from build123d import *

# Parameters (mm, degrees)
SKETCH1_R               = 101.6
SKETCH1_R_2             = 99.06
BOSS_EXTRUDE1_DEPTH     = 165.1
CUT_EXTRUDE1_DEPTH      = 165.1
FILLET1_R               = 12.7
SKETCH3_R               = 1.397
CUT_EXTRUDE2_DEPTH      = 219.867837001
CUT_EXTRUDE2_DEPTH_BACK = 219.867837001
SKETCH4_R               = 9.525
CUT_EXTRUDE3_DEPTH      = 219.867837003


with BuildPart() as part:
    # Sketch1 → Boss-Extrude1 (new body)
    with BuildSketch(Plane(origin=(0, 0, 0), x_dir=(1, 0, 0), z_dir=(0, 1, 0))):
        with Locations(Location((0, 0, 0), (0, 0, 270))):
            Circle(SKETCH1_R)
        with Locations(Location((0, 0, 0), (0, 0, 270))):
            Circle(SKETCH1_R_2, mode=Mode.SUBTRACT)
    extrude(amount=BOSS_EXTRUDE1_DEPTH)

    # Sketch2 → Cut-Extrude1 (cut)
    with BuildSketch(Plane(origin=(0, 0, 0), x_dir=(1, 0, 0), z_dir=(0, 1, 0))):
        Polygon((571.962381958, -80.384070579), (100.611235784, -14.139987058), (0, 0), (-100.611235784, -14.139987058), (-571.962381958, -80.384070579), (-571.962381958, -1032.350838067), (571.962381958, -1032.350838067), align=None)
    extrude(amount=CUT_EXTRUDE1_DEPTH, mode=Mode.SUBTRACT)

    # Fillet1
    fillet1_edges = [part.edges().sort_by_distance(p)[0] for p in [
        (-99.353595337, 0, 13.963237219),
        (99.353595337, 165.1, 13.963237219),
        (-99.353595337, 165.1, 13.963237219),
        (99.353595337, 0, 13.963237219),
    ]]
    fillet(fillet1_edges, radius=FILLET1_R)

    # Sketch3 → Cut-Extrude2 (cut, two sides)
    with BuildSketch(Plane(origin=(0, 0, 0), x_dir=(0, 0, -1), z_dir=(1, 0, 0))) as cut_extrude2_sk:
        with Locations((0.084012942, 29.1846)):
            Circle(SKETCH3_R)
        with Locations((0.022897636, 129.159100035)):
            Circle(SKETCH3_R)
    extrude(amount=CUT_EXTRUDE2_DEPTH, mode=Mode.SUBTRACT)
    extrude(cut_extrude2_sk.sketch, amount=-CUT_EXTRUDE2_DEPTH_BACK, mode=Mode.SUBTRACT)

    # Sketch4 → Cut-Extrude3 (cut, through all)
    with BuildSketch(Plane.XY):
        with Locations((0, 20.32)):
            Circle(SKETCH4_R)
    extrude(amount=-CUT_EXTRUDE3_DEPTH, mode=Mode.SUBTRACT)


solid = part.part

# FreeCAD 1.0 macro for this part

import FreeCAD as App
import Part
import Sketcher
Q = App.Units.Quantity


def edges_at(feature, points):
    """Names of the edges that pass closest to the given points."""
    edges = feature.Shape.Edges
    near = lambda p: min(range(len(edges)), key=lambda i: edges[i].distToShape(Part.Vertex(*p))[0])
    return sorted({f"Edge{near(p) + 1}" for p in points})

doc = App.newDocument("Part")
params = doc.addObject("Spreadsheet::Sheet", "Params")
for row, (alias, value) in enumerate([
    ("sketch1_diameter", "8 in"),
    ("sketch1_diameter2", "7.8 in"),
    ("pad1_length", "6.5 in"),
    ("sketch2_length", "4 in"),
    ("pocket1_length", "6.5 in"),
    ("fillet_radius", "0.5 in"),
    ("sketch3_diameter", "0.11 in"),
    ("sketch4_diameter", "0.75 in"),
], start=1):
    params.set(f"A{row}", alias)
    params.set(f"B{row}", "=" + value)
    params.setAlias(f"B{row}", alias)

body = doc.addObject("PartDesign::Body", "Body")

# Sketch on XZ plane
sketch1 = body.newObject("Sketcher::SketchObject", "Sketch")
sketch1.AttachmentSupport = (doc.getObject("XZ_Plane"), [""])
sketch1.MapMode = "FlatFace"
sketch1.addGeometry(Part.Circle(App.Vector(0, 0, 0), App.Vector(0, 0, 1), 102), False)
sketch1.addGeometry(Part.Circle(App.Vector(0, 0, 0), App.Vector(0, 0, 1), 99), False)
sketch1.addConstraint(Sketcher.Constraint("Coincident", 0, 3, -1, 1))
sketch1.addConstraint(Sketcher.Constraint("Coincident", 1, 3, -1, 1))
sketch1.addConstraint(Sketcher.Constraint("Diameter", 0, Q("8 in")))
sketch1.addConstraint(Sketcher.Constraint("Diameter", 1, Q("7.8 in")))
sketch1.setExpression("Constraints[2]", "Params.sketch1_diameter")
sketch1.setExpression("Constraints[3]", "Params.sketch1_diameter2")
pad1 = body.newObject("PartDesign::Pad", "Pad")
pad1.Profile = sketch1
pad1.setExpression("Length", "Params.pad1_length")
pad1.Reversed = True

# Sketch on XZ plane
sketch2 = body.newObject("Sketcher::SketchObject", "Sketch001")
sketch2.AttachmentSupport = (doc.getObject("XZ_Plane"), [""])
sketch2.MapMode = "FlatFace"
sketch2.addGeometry(Part.LineSegment(App.Vector(572, 80, 0), App.Vector(101, 14, 0)), False)
sketch2.addGeometry(Part.LineSegment(App.Vector(101, 14, 0), App.Vector(0, 0, 0)), False)
sketch2.addGeometry(Part.LineSegment(App.Vector(0, 0, 0), App.Vector(-101, 14, 0)), False)
sketch2.addGeometry(Part.LineSegment(App.Vector(-101, 14, 0), App.Vector(-572, 80, 0)), False)
sketch2.addGeometry(Part.LineSegment(App.Vector(-572, 80, 0), App.Vector(-572, 1032, 0)), False)
sketch2.addGeometry(Part.LineSegment(App.Vector(-572, 1032, 0), App.Vector(572, 1032, 0)), False)
sketch2.addGeometry(Part.LineSegment(App.Vector(572, 1032, 0), App.Vector(572, 80, 0)), False)
sketch2.addConstraint(Sketcher.Constraint("Coincident", 0, 2, 1, 1))
sketch2.addConstraint(Sketcher.Constraint("Coincident", 1, 2, 2, 1))
sketch2.addConstraint(Sketcher.Constraint("Coincident", 2, 2, 3, 1))
sketch2.addConstraint(Sketcher.Constraint("Coincident", 3, 2, 4, 1))
sketch2.addConstraint(Sketcher.Constraint("Coincident", 4, 2, 5, 1))
sketch2.addConstraint(Sketcher.Constraint("Coincident", 5, 2, 6, 1))
sketch2.addConstraint(Sketcher.Constraint("Coincident", 6, 2, 0, 1))
sketch2.addConstraint(Sketcher.Constraint("Vertical", 4))
sketch2.addConstraint(Sketcher.Constraint("Horizontal", 5))
sketch2.addConstraint(Sketcher.Constraint("Vertical", 6))
sketch2.addConstraint(Sketcher.Constraint("Coincident", 1, 2, -1, 1))
sketch2.addConstraint(Sketcher.Constraint("Symmetric", 0, 2, 2, 2, -2))
sketch2.addConstraint(Sketcher.Constraint("Symmetric", 3, 2, 6, 2, -2))
sketch2.addConstraint(Sketcher.Constraint("Parallel", 0, 1))
sketch2.addConstraint(Sketcher.Constraint("Distance", 1, Q("4 in")))
sketch2.addConstraint(Sketcher.Constraint("Angle", 0, Q("-172 deg")))
sketch2.addConstraint(Sketcher.Constraint("DistanceX", 5, 1, 5, 2, Q("1143.924764 mm")))
sketch2.addConstraint(Sketcher.Constraint("DistanceY", 4, 1, 4, 2, Q("951.966767 mm")))
sketch2.setExpression("Constraints[14]", "Params.sketch2_length")
pocket1 = body.newObject("PartDesign::Pocket", "Pocket")
pocket1.Profile = sketch2
pocket1.setExpression("Length", "Params.pocket1_length")
doc.recompute()

fillet = body.newObject("PartDesign::Fillet", "Fillet")
fillet.Base = (pocket1, edges_at(pocket1, [
    (-99.354, 0, 13.963),
    (99.354, 165.1, 13.963),
    (-99.354, 165.1, 13.963),
    (99.354, 0, 13.963),
]))
fillet.setExpression("Radius", "Params.fillet_radius")

# Sketch on YZ plane
sketch3 = body.newObject("Sketcher::SketchObject", "Sketch002")
sketch3.AttachmentSupport = (doc.getObject("YZ_Plane"), [""])
sketch3.MapMode = "FlatFace"
sketch3.addGeometry(Part.Circle(App.Vector(29.2, -0.1, 0), App.Vector(0, 0, 1), 1.4), False)
sketch3.addGeometry(Part.Circle(App.Vector(129.2, 0, 0), App.Vector(0, 0, 1), 1.4), False)
sketch3.addConstraint(Sketcher.Constraint("Equal", 0, 1))
sketch3.addConstraint(Sketcher.Constraint("Diameter", 0, Q("0.11 in")))
sketch3.addConstraint(Sketcher.Constraint("DistanceX", -1, 1, 0, 3, Q("1.149 in")))
sketch3.addConstraint(Sketcher.Constraint("DistanceX", -1, 1, 1, 3, Q("129.1591 mm")))
sketch3.addConstraint(Sketcher.Constraint("DistanceY", 0, 3, -1, 1, Q("0.084013 mm")))
sketch3.addConstraint(Sketcher.Constraint("DistanceY", 1, 3, -1, 1, Q("0.022898 mm")))
sketch3.setExpression("Constraints[1]", "Params.sketch3_diameter")
pocket2 = body.newObject("PartDesign::Pocket", "Pocket001")
pocket2.Profile = sketch3
pocket2.Type = "ThroughAll"
pocket2.Midplane = True

# Sketch on XY plane
sketch4 = body.newObject("Sketcher::SketchObject", "Sketch003")
sketch4.AttachmentSupport = (doc.getObject("XY_Plane"), [""])
sketch4.MapMode = "FlatFace"
sketch4.addGeometry(Part.Circle(App.Vector(0, 20, 0), App.Vector(0, 0, 1), 10), False)
sketch4.addConstraint(Sketcher.Constraint("PointOnObject", 0, 3, -2))
sketch4.addConstraint(Sketcher.Constraint("Diameter", 0, Q("0.75 in")))
sketch4.addConstraint(Sketcher.Constraint("DistanceY", -1, 1, 0, 3, Q("0.8 in")))
sketch4.setExpression("Constraints[1]", "Params.sketch4_diameter")
pocket3 = body.newObject("PartDesign::Pocket", "Pocket002")
pocket3.Profile = sketch4
pocket3.Type = "ThroughAll"

doc.recompute()
